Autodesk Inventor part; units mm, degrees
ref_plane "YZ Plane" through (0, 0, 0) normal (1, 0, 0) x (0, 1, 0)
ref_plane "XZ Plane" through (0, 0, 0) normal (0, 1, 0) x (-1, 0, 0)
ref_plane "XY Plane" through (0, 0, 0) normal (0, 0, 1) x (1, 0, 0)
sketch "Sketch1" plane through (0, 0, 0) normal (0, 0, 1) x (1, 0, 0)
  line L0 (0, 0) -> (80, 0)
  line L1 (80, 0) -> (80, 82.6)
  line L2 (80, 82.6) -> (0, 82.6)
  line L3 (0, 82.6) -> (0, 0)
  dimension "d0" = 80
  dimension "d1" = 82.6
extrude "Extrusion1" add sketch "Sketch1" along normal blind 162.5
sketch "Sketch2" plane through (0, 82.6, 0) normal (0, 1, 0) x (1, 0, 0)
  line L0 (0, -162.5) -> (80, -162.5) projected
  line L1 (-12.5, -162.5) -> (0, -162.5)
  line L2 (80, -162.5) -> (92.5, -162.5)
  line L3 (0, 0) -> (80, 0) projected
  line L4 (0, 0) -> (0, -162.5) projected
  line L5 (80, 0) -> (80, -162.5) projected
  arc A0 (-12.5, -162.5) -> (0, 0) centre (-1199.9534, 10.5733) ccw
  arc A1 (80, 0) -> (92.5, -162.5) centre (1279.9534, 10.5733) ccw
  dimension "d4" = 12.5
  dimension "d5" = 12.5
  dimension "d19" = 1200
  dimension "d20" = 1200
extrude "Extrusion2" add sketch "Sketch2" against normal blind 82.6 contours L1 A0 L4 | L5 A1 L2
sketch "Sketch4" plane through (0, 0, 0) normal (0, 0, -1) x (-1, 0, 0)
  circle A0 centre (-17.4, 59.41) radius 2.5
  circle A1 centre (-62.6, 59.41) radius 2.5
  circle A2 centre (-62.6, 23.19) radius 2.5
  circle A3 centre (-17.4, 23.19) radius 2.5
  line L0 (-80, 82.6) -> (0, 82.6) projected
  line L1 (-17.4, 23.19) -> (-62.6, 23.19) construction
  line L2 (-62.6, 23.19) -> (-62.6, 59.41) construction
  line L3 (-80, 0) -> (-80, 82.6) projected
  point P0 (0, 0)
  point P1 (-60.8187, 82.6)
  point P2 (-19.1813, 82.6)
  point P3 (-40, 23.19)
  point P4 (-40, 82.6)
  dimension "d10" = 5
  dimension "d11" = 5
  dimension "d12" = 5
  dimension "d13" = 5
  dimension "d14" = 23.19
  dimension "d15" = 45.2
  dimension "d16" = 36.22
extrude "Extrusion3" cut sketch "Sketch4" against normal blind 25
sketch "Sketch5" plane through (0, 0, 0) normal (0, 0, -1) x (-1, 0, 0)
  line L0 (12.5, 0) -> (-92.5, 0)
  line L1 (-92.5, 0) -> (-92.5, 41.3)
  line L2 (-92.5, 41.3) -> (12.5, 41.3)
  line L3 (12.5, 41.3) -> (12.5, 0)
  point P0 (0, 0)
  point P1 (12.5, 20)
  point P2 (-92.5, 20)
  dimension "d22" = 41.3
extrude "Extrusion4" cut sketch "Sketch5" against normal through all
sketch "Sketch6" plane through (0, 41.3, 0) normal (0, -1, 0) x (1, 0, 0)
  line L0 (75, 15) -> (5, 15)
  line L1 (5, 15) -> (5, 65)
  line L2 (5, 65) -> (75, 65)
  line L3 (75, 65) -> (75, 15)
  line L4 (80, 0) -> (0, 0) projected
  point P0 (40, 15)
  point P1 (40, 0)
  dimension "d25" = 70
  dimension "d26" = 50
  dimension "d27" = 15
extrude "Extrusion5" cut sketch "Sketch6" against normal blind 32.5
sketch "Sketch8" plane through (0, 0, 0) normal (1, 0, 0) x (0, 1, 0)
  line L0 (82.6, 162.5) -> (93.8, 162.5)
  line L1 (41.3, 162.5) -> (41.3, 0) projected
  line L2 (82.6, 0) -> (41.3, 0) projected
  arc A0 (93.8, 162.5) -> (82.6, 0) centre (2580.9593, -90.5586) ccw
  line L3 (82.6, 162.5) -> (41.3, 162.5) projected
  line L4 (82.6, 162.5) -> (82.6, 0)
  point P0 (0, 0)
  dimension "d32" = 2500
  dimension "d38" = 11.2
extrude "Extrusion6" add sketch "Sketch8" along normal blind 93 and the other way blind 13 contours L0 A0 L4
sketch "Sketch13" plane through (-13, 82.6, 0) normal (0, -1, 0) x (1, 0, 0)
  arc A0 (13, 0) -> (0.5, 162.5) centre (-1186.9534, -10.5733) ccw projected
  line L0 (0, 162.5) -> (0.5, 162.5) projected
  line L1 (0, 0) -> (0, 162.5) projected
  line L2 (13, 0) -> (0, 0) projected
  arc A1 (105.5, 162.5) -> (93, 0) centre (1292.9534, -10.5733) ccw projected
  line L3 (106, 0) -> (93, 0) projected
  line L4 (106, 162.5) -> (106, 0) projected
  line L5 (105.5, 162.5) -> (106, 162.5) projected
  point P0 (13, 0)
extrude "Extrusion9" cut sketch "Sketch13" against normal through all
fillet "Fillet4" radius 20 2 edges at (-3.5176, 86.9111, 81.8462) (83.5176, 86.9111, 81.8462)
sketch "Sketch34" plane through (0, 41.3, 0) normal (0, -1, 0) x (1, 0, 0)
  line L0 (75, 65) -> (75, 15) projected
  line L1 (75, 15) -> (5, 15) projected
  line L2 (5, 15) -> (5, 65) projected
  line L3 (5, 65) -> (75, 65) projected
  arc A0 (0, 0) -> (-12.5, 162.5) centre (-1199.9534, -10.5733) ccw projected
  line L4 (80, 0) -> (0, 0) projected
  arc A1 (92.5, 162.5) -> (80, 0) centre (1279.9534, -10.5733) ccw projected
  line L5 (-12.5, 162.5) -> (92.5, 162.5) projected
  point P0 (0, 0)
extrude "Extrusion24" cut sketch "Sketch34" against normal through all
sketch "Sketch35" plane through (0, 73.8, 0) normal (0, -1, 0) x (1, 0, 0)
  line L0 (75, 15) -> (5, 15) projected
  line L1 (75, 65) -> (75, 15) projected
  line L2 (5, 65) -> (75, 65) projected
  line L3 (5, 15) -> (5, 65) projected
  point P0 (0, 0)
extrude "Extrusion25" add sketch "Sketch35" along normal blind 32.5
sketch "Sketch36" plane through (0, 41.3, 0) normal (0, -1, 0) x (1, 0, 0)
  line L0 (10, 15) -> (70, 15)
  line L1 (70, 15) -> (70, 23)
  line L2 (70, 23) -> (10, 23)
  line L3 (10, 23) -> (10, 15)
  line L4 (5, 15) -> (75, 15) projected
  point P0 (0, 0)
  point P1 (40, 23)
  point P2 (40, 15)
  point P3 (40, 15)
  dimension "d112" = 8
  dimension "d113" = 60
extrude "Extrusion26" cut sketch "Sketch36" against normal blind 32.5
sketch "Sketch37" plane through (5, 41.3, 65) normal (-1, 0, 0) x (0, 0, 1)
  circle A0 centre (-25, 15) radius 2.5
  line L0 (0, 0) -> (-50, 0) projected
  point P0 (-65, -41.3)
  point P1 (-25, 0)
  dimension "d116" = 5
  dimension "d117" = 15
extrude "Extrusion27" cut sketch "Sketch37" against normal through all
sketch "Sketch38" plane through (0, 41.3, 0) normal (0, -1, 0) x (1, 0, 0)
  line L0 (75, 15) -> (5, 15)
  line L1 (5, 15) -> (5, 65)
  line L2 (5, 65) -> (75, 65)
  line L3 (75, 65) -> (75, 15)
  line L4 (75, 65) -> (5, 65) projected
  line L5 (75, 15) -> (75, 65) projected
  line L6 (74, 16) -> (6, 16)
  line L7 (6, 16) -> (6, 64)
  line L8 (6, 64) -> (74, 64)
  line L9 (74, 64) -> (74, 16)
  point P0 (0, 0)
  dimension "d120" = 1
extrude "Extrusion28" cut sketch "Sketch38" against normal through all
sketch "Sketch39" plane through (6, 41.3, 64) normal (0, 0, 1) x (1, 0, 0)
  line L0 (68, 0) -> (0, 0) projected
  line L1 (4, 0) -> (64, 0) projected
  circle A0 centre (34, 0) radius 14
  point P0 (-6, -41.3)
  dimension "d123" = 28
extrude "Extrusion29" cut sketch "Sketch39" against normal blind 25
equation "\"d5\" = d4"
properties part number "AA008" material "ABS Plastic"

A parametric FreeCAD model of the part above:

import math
import FreeCAD as App
import Part
import Sketcher


def edges_at(feature, points):
    """Names of the edges that pass closest to the given points."""
    edges = feature.Shape.Edges
    near = lambda p: min(range(len(edges)), key=lambda i: edges[i].distToShape(Part.Vertex(*p))[0])
    return sorted({f"Edge{near(p) + 1}" for p in points})


def add_polygon(sketch, points):
    """Adds a closed chain of lines whose ends are joined by coincident constraints."""
    first, n = sketch.GeometryCount, len(points)
    for a, b in zip(points, points[1:] + points[:1]):
        sketch.addGeometry(Part.LineSegment(App.Vector(*a, 0), App.Vector(*b, 0)), False)
    for i in range(n):
        sketch.addConstraint(Sketcher.Constraint("Coincident", first + i, 2, first + (i + 1) % n, 1))

doc = App.newDocument("Part")
params = doc.addObject("Spreadsheet::Sheet", "Params")
for row, (alias, value) in enumerate([
    ("sketch1_width", "80 mm"),
    ("sketch1_height", "82.6 mm"),
    ("pad1_length", "162.5 mm"),
    ("sketch2_width", "12.5 mm"),
    ("sketch2_width2", "12.5 mm"),
    ("sketch2_height", "162.5 mm"),
    ("sketch2_height2", "162.5 mm"),
    ("pad2_length", "82.6 mm"),
    ("sketch3_diameter", "5 mm"),
    ("pocket1_length", "25 mm"),
    ("sketch4_height", "41.3 mm"),
    ("sketch4_width", "105 mm"),
    ("sketch5_width", "70 mm"),
    ("sketch5_height", "50 mm"),
    ("pocket3_length", "32.5 mm"),
    ("sketch6_width", "11.2 mm"),
    ("sketch6_height", "162.5 mm"),
    ("pad3_length", "93 mm"),
    ("pad3_length2", "13 mm"),
    ("sketch7_width", "13 mm"),
    ("sketch7_width2", "13 mm"),
    ("sketch7_width3", "0.5 mm"),
    ("sketch7_width4", "0.5 mm"),
    ("sketch7_height", "162.5 mm"),
    ("fillet_radius", "20 mm"),
    ("sketch8_width", "80 mm"),
    ("sketch8_width2", "105 mm"),
    ("sketch8_width3", "70 mm"),
    ("sketch8_height", "50 mm"),
    ("sketch9_width", "70 mm"),
    ("sketch9_height", "50 mm"),
    ("pad4_length", "32.5 mm"),
    ("sketch10_width", "60 mm"),
    ("sketch10_height", "8 mm"),
    ("pocket6_length", "32.5 mm"),
    ("sketch11_diameter", "5 mm"),
    ("sketch12_width", "70 mm"),
    ("sketch12_height", "50 mm"),
    ("sketch13_diameter", "28 mm"),
    ("pocket9_length", "25 mm"),
], start=1):
    params.set(f"A{row}", alias)
    params.set(f"B{row}", "=" + value)
    params.setAlias(f"B{row}", alias)

body = doc.addObject("PartDesign::Body", "Body")

# Sketch on XY plane
sketch1 = body.newObject("Sketcher::SketchObject", "Sketch")
sketch1.AttachmentSupport = (doc.getObject("XY_Plane"), [""])
sketch1.MapMode = "FlatFace"
add_polygon(sketch1, [(0, 83), (0, 0), (80, 0), (80, 83)])  # lines 0-3
sketch1.addConstraint(Sketcher.Constraint("Vertical", 0))
sketch1.addConstraint(Sketcher.Constraint("Horizontal", 1))
sketch1.addConstraint(Sketcher.Constraint("Vertical", 2))
sketch1.addConstraint(Sketcher.Constraint("Horizontal", 3))
sketch1.addConstraint(Sketcher.Constraint("Coincident", 0, 2, -1, 1))
sketch1.addConstraint(Sketcher.Constraint("DistanceX", 1, 1, 1, 2, 80.0))
sketch1.addConstraint(Sketcher.Constraint("DistanceY", 0, 2, 0, 1, 82.6))
sketch1.setExpression("Constraints[9]", "Params.sketch1_width")
sketch1.setExpression("Constraints[10]", "Params.sketch1_height")
pad1 = body.newObject("PartDesign::Pad", "Pad")
pad1.Profile = sketch1
pad1.setExpression("Length", "Params.pad1_length")

# Sketch on XZ plane
sketch2 = body.newObject("Sketcher::SketchObject", "Sketch001")
sketch2.AttachmentSupport = (doc.getObject("XZ_Plane"), [""])
sketch2.MapMode = "FlatFace"
sketch2.AttachmentOffset = App.Placement(App.Vector(0, 0, -82.6), App.Rotation())
sketch2.addGeometry(Part.LineSegment(App.Vector(-12.5, 162.5, 0), App.Vector(0, 162.5, 0)), False)
sketch2.addGeometry(Part.LineSegment(App.Vector(0, 162.5, 0), App.Vector(0, 0, 0)), False)
sketch2.addGeometry(Part.ArcOfCircle(Part.Circle(App.Vector(-1199.954522, -10.573425, 0), App.Vector(0, 0, 1), 1200.001105), math.radians(0.50485), math.radians(8.292561)), False)
sketch2.addGeometry(Part.LineSegment(App.Vector(80, 0, 0), App.Vector(80, 162.5, 0)), False)
sketch2.addGeometry(Part.LineSegment(App.Vector(80, 162.5, 0), App.Vector(92.5, 162.5, 0)), False)
sketch2.addGeometry(Part.ArcOfCircle(Part.Circle(App.Vector(1279.952272, -10.573252, 0), App.Vector(0, 0, 1), 1199.998854), math.radians(171.707432), math.radians(179.495157)), False)
sketch2.addConstraint(Sketcher.Constraint("Coincident", 0, 2, 1, 1))
sketch2.addConstraint(Sketcher.Constraint("Coincident", 1, 2, 2, 1))
sketch2.addConstraint(Sketcher.Constraint("Coincident", 2, 2, 0, 1))
sketch2.addConstraint(Sketcher.Constraint("Coincident", 3, 2, 4, 1))
sketch2.addConstraint(Sketcher.Constraint("Coincident", 4, 2, 5, 1))
sketch2.addConstraint(Sketcher.Constraint("Coincident", 5, 2, 3, 1))
sketch2.addConstraint(Sketcher.Constraint("Horizontal", 0))
sketch2.addConstraint(Sketcher.Constraint("Vertical", 1))
sketch2.addConstraint(Sketcher.Constraint("Vertical", 3))
sketch2.addConstraint(Sketcher.Constraint("Horizontal", 4))
sketch2.addConstraint(Sketcher.Constraint("Coincident", 1, 2, -1, 1))
sketch2.addConstraint(Sketcher.Constraint("DistanceX", 0, 1, 0, 2, 12.5))
sketch2.addConstraint(Sketcher.Constraint("DistanceX", 4, 1, 4, 2, 12.5))
sketch2.addConstraint(Sketcher.Constraint("DistanceY", 1, 2, 1, 1, 162.5))
sketch2.addConstraint(Sketcher.Constraint("DistanceY", 3, 1, 3, 2, 162.5))
sketch2.addConstraint(Sketcher.Constraint("DistanceX", -1, 1, 3, 2, 80.0))
sketch2.addConstraint(Sketcher.Constraint("Radius", 2, 1200.001))
sketch2.addConstraint(Sketcher.Constraint("DistanceY", -1, 1, 3, 2, 162.5))
sketch2.addConstraint(Sketcher.Constraint("Radius", 5, 1199.9989))
sketch2.setExpression("Constraints[11]", "Params.sketch2_width")
sketch2.setExpression("Constraints[12]", "Params.sketch2_width2")
sketch2.setExpression("Constraints[13]", "Params.sketch2_height")
sketch2.setExpression("Constraints[14]", "Params.sketch2_height2")
pad2 = body.newObject("PartDesign::Pad", "Pad001")
pad2.Profile = sketch2
pad2.setExpression("Length", "Params.pad2_length")

# Sketch on XY plane
sketch3 = body.newObject("Sketcher::SketchObject", "Sketch002")
sketch3.AttachmentSupport = (doc.getObject("XY_Plane"), [""])
sketch3.MapMode = "FlatFace"
sketch3.addGeometry(Part.Circle(App.Vector(17.4, 59.4, 0), App.Vector(0, 0, 1), 2.5), False)
sketch3.addGeometry(Part.Circle(App.Vector(62.6, 59.4, 0), App.Vector(0, 0, 1), 2.5), False)
sketch3.addGeometry(Part.Circle(App.Vector(62.6, 23.2, 0), App.Vector(0, 0, 1), 2.5), False)
sketch3.addGeometry(Part.Circle(App.Vector(17.4, 23.2, 0), App.Vector(0, 0, 1), 2.5), False)
sketch3.addConstraint(Sketcher.Constraint("Equal", 0, 1))
sketch3.addConstraint(Sketcher.Constraint("Equal", 1, 2))
sketch3.addConstraint(Sketcher.Constraint("Equal", 2, 3))
sketch3.addConstraint(Sketcher.Constraint("Horizontal", 0, 3, 1, 3))
sketch3.addConstraint(Sketcher.Constraint("Horizontal", 2, 3, 3, 3))
sketch3.addConstraint(Sketcher.Constraint("Vertical", 1, 3, 2, 3))
sketch3.addConstraint(Sketcher.Constraint("Vertical", 0, 3, 3, 3))
sketch3.addConstraint(Sketcher.Constraint("Diameter", 0, 5.0))
sketch3.addConstraint(Sketcher.Constraint("DistanceX", 0, 3, 1, 3, 45.2))
sketch3.addConstraint(Sketcher.Constraint("DistanceY", -1, 1, 2, 3, 23.19))
sketch3.addConstraint(Sketcher.Constraint("DistanceY", 2, 3, 1, 3, 36.22))
sketch3.addConstraint(Sketcher.Constraint("DistanceX", -1, 1, 0, 3, 17.4))
sketch3.setExpression("Constraints[7]", "Params.sketch3_diameter")
pocket1 = body.newObject("PartDesign::Pocket", "Pocket")
pocket1.Profile = sketch3
pocket1.setExpression("Length", "Params.pocket1_length")
pocket1.Reversed = True

# Sketch on XY plane
sketch4 = body.newObject("Sketcher::SketchObject", "Sketch003")
sketch4.AttachmentSupport = (doc.getObject("XY_Plane"), [""])
sketch4.MapMode = "FlatFace"
add_polygon(sketch4, [(92, 0), (-12, 0), (-12, 41), (92, 41)])  # lines 0-3
sketch4.addConstraint(Sketcher.Constraint("Horizontal", 0))
sketch4.addConstraint(Sketcher.Constraint("Vertical", 1))
sketch4.addConstraint(Sketcher.Constraint("Horizontal", 2))
sketch4.addConstraint(Sketcher.Constraint("Vertical", 3))
sketch4.addConstraint(Sketcher.Constraint("PointOnObject", 0, 2, -1))
sketch4.addConstraint(Sketcher.Constraint("DistanceY", 1, 1, 1, 2, 41.3))
sketch4.addConstraint(Sketcher.Constraint("DistanceX", 0, 2, 0, 1, 105.0))
sketch4.addConstraint(Sketcher.Constraint("DistanceX", 0, 2, -1, 1, 12.5))
sketch4.setExpression("Constraints[9]", "Params.sketch4_height")
sketch4.setExpression("Constraints[10]", "Params.sketch4_width")
pocket2 = body.newObject("PartDesign::Pocket", "Pocket001")
pocket2.Profile = sketch4
pocket2.Type = "ThroughAll"
pocket2.Reversed = True

# Sketch on XZ plane
sketch5 = body.newObject("Sketcher::SketchObject", "Sketch004")
sketch5.AttachmentSupport = (doc.getObject("XZ_Plane"), [""])
sketch5.MapMode = "FlatFace"
sketch5.AttachmentOffset = App.Placement(App.Vector(0, 0, -41.3), App.Rotation())
add_polygon(sketch5, [(5, 15), (75, 15), (75, 65), (5, 65)])  # lines 0-3
sketch5.addConstraint(Sketcher.Constraint("Horizontal", 0))
sketch5.addConstraint(Sketcher.Constraint("Vertical", 1))
sketch5.addConstraint(Sketcher.Constraint("Horizontal", 2))
sketch5.addConstraint(Sketcher.Constraint("Vertical", 3))
sketch5.addConstraint(Sketcher.Constraint("DistanceX", 0, 1, 0, 2, 70.0))
sketch5.addConstraint(Sketcher.Constraint("DistanceY", 1, 1, 1, 2, 50.0))
sketch5.addConstraint(Sketcher.Constraint("DistanceY", -1, 1, 0, 2, 15.0))
sketch5.addConstraint(Sketcher.Constraint("DistanceX", -1, 1, 0, 2, 75.0))
sketch5.setExpression("Constraints[8]", "Params.sketch5_width")
sketch5.setExpression("Constraints[9]", "Params.sketch5_height")
pocket3 = body.newObject("PartDesign::Pocket", "Pocket002")
pocket3.Profile = sketch5
pocket3.setExpression("Length", "Params.pocket3_length")

# Sketch on YZ plane
sketch6 = body.newObject("Sketcher::SketchObject", "Sketch005")
sketch6.AttachmentSupport = (doc.getObject("YZ_Plane"), [""])
sketch6.MapMode = "FlatFace"
sketch6.addGeometry(Part.LineSegment(App.Vector(94, 162, 0), App.Vector(83, 162, 0)), False)
sketch6.addGeometry(Part.LineSegment(App.Vector(83, 162, 0), App.Vector(83, 0, 0)), False)
sketch6.addGeometry(Part.ArcOfCircle(Part.Circle(App.Vector(2581, -91, 0), App.Vector(0, 0, 1), 2500), math.radians(174.19), math.radians(177.92)), False)
sketch6.addConstraint(Sketcher.Constraint("Coincident", 0, 2, 1, 1))
sketch6.addConstraint(Sketcher.Constraint("Coincident", 1, 2, 2, 2))
sketch6.addConstraint(Sketcher.Constraint("Coincident", 2, 1, 0, 1))
sketch6.addConstraint(Sketcher.Constraint("Horizontal", 0))
sketch6.addConstraint(Sketcher.Constraint("Vertical", 1))
sketch6.addConstraint(Sketcher.Constraint("PointOnObject", 1, 2, -1))
sketch6.addConstraint(Sketcher.Constraint("DistanceX", 0, 2, 0, 1, 11.2))
sketch6.addConstraint(Sketcher.Constraint("DistanceY", 1, 2, 1, 1, 162.5))
sketch6.addConstraint(Sketcher.Constraint("DistanceX", -1, 1, 0, 2, 82.6))
sketch6.addConstraint(Sketcher.Constraint("Radius", 2, 2500.0025))
sketch6.setExpression("Constraints[6]", "Params.sketch6_width")
sketch6.setExpression("Constraints[7]", "Params.sketch6_height")
pad3 = body.newObject("PartDesign::Pad", "Pad002")
pad3.Profile = sketch6
pad3.Type = "TwoLengths"
pad3.setExpression("Length", "Params.pad3_length")
pad3.setExpression("Length2", "Params.pad3_length2")

# Sketch on XZ plane
sketch7 = body.newObject("Sketcher::SketchObject", "Sketch006")
sketch7.AttachmentSupport = (doc.getObject("XZ_Plane"), [""])
sketch7.MapMode = "FlatFace"
sketch7.AttachmentOffset = App.Placement(App.Vector(0, 0, -82.6), App.Rotation())
sketch7.addGeometry(Part.LineSegment(App.Vector(-13, 0, 0), App.Vector(0, 0, 0)), False)
sketch7.addGeometry(Part.ArcOfCircle(Part.Circle(App.Vector(-1199.952272, -10.573252, 0), App.Vector(0, 0, 1), 1199.998854), math.radians(0.504843), math.radians(8.292568)), False)
sketch7.addGeometry(Part.LineSegment(App.Vector(-12.5, 162.5, 0), App.Vector(-13, 162.5, 0)), False)
sketch7.addGeometry(Part.LineSegment(App.Vector(-13, 162.5, 0), App.Vector(-13, 0, 0)), False)
sketch7.addGeometry(Part.LineSegment(App.Vector(93, 162.5, 0), App.Vector(92.5, 162.5, 0)), False)
sketch7.addGeometry(Part.ArcOfCircle(Part.Circle(App.Vector(1279.954522, -10.573425, 0), App.Vector(0, 0, 1), 1200.001105), math.radians(171.707439), math.radians(179.49515)), False)
sketch7.addGeometry(Part.LineSegment(App.Vector(80, 0, 0), App.Vector(93, 0, 0)), False)
sketch7.addGeometry(Part.LineSegment(App.Vector(93, 0, 0), App.Vector(93, 162.5, 0)), False)
sketch7.addConstraint(Sketcher.Constraint("Coincident", 0, 2, 1, 1))
sketch7.addConstraint(Sketcher.Constraint("Coincident", 1, 2, 2, 1))
sketch7.addConstraint(Sketcher.Constraint("Coincident", 2, 2, 3, 1))
sketch7.addConstraint(Sketcher.Constraint("Coincident", 3, 2, 0, 1))
sketch7.addConstraint(Sketcher.Constraint("Coincident", 4, 2, 5, 1))
sketch7.addConstraint(Sketcher.Constraint("Coincident", 5, 2, 6, 1))
sketch7.addConstraint(Sketcher.Constraint("Coincident", 6, 2, 7, 1))
sketch7.addConstraint(Sketcher.Constraint("Coincident", 7, 2, 4, 1))
sketch7.addConstraint(Sketcher.Constraint("Horizontal", 0))
sketch7.addConstraint(Sketcher.Constraint("Horizontal", 2))
sketch7.addConstraint(Sketcher.Constraint("Vertical", 3))
sketch7.addConstraint(Sketcher.Constraint("Horizontal", 4))
sketch7.addConstraint(Sketcher.Constraint("Horizontal", 6))
sketch7.addConstraint(Sketcher.Constraint("Vertical", 7))
sketch7.addConstraint(Sketcher.Constraint("Coincident", 0, 2, -1, 1))
sketch7.addConstraint(Sketcher.Constraint("PointOnObject", 6, 2, -1))
sketch7.addConstraint(Sketcher.Constraint("DistanceX", 0, 1, 0, 2, 13.0))
sketch7.addConstraint(Sketcher.Constraint("DistanceX", 6, 1, 6, 2, 13.0))
sketch7.addConstraint(Sketcher.Constraint("DistanceX", 2, 2, 2, 1, 0.5))
sketch7.addConstraint(Sketcher.Constraint("DistanceX", 4, 2, 4, 1, 0.5))
sketch7.addConstraint(Sketcher.Constraint("DistanceY", 3, 2, 3, 1, 162.5))
sketch7.addConstraint(Sketcher.Constraint("DistanceY", 7, 1, 7, 2, 162.5))
sketch7.addConstraint(Sketcher.Constraint("DistanceX", -1, 1, 5, 2, 80.0))
sketch7.addConstraint(Sketcher.Constraint("Radius", 5, 1200.001))
sketch7.addConstraint(Sketcher.Constraint("Radius", 1, 1199.9989))
sketch7.setExpression("Constraints[16]", "Params.sketch7_width")
sketch7.setExpression("Constraints[17]", "Params.sketch7_width2")
sketch7.setExpression("Constraints[18]", "Params.sketch7_width3")
sketch7.setExpression("Constraints[19]", "Params.sketch7_width4")
sketch7.setExpression("Constraints[20]", "Params.sketch7_height")
pocket4 = body.newObject("PartDesign::Pocket", "Pocket003")
pocket4.Profile = sketch7
pocket4.Type = "ThroughAll"
doc.recompute()

fillet = body.newObject("PartDesign::Fillet", "Fillet")
fillet.Base = (pocket4, edges_at(pocket4, [(-3.518, 86.911, 81.846), (83.518, 86.911, 81.846)]))
fillet.setExpression("Radius", "Params.fillet_radius")

# Sketch on XZ plane
sketch8 = body.newObject("Sketcher::SketchObject", "Sketch007")
sketch8.AttachmentSupport = (doc.getObject("XZ_Plane"), [""])
sketch8.MapMode = "FlatFace"
sketch8.AttachmentOffset = App.Placement(App.Vector(0, 0, -41.3), App.Rotation())
sketch8.addGeometry(Part.ArcOfCircle(Part.Circle(App.Vector(-1199.952272, -10.573252, 0), App.Vector(0, 0, 1), 1199.998854), math.radians(0.504843), math.radians(8.292568)), False)  # 0
sketch8.addGeometry(Part.LineSegment(App.Vector(0, 0, 0), App.Vector(80, 0, 0)), False)  # 1
sketch8.addGeometry(Part.ArcOfCircle(Part.Circle(App.Vector(1279.954522, -10.573425, 0), App.Vector(0, 0, 1), 1200.001105), math.radians(171.707439), math.radians(179.49515)), False)  # 2
sketch8.addGeometry(Part.LineSegment(App.Vector(92.5, 162.5, 0), App.Vector(-12.5, 162.5, 0)), False)  # 3
add_polygon(sketch8, [(5, 65), (75, 65), (75, 15), (5, 15)])  # lines 4-7
sketch8.addConstraint(Sketcher.Constraint("Coincident", 0, 1, 1, 1))
sketch8.addConstraint(Sketcher.Constraint("Coincident", 1, 2, 2, 2))
sketch8.addConstraint(Sketcher.Constraint("Coincident", 2, 1, 3, 1))
sketch8.addConstraint(Sketcher.Constraint("Coincident", 3, 2, 0, 2))
sketch8.addConstraint(Sketcher.Constraint("Horizontal", 1))
sketch8.addConstraint(Sketcher.Constraint("Horizontal", 3))
sketch8.addConstraint(Sketcher.Constraint("Horizontal", 4))
sketch8.addConstraint(Sketcher.Constraint("Vertical", 5))
sketch8.addConstraint(Sketcher.Constraint("Horizontal", 6))
sketch8.addConstraint(Sketcher.Constraint("Vertical", 7))
sketch8.addConstraint(Sketcher.Constraint("PointOnObject", 1, 2, -1))
sketch8.addConstraint(Sketcher.Constraint("DistanceX", 1, 1, 1, 2, 80.0))
sketch8.addConstraint(Sketcher.Constraint("DistanceX", 3, 2, 3, 1, 105.0))
sketch8.addConstraint(Sketcher.Constraint("DistanceX", 4, 1, 4, 2, 70.0))
sketch8.addConstraint(Sketcher.Constraint("DistanceY", 5, 2, 5, 1, 50.0))
sketch8.addConstraint(Sketcher.Constraint("DistanceX", -1, 1, 1, 2, 80.0))
sketch8.addConstraint(Sketcher.Constraint("DistanceX", -1, 1, 4, 2, 75.0))
sketch8.addConstraint(Sketcher.Constraint("DistanceY", -1, 1, 4, 2, 65.0))
sketch8.addConstraint(Sketcher.Constraint("Radius", 2, 1200.001))
sketch8.addConstraint(Sketcher.Constraint("DistanceX", 3, 2, -1, 1, 12.5))
sketch8.addConstraint(Sketcher.Constraint("DistanceY", -1, 1, 3, 2, 162.5))
sketch8.addConstraint(Sketcher.Constraint("Radius", 0, 1199.9989))
sketch8.setExpression("Constraints[15]", "Params.sketch8_width")
sketch8.setExpression("Constraints[16]", "Params.sketch8_width2")
sketch8.setExpression("Constraints[17]", "Params.sketch8_width3")
sketch8.setExpression("Constraints[18]", "Params.sketch8_height")
pocket5 = body.newObject("PartDesign::Pocket", "Pocket004")
pocket5.Profile = sketch8
pocket5.Type = "ThroughAll"

# Sketch on XZ plane
sketch9 = body.newObject("Sketcher::SketchObject", "Sketch008")
sketch9.AttachmentSupport = (doc.getObject("XZ_Plane"), [""])
sketch9.MapMode = "FlatFace"
sketch9.AttachmentOffset = App.Placement(App.Vector(0, 0, -73.8), App.Rotation())
add_polygon(sketch9, [(5, 15), (75, 15), (75, 65), (5, 65)])  # lines 0-3
sketch9.addConstraint(Sketcher.Constraint("Horizontal", 0))
sketch9.addConstraint(Sketcher.Constraint("Vertical", 1))
sketch9.addConstraint(Sketcher.Constraint("Horizontal", 2))
sketch9.addConstraint(Sketcher.Constraint("Vertical", 3))
sketch9.addConstraint(Sketcher.Constraint("DistanceX", 0, 1, 0, 2, 70.0))
sketch9.addConstraint(Sketcher.Constraint("DistanceY", 1, 1, 1, 2, 50.0))
sketch9.addConstraint(Sketcher.Constraint("DistanceX", -1, 1, 0, 2, 75.0))
sketch9.addConstraint(Sketcher.Constraint("DistanceY", -1, 1, 0, 2, 15.0))
sketch9.setExpression("Constraints[8]", "Params.sketch9_width")
sketch9.setExpression("Constraints[9]", "Params.sketch9_height")
pad4 = body.newObject("PartDesign::Pad", "Pad003")
pad4.Profile = sketch9
pad4.setExpression("Length", "Params.pad4_length")

# Sketch on XZ plane
sketch10 = body.newObject("Sketcher::SketchObject", "Sketch009")
sketch10.AttachmentSupport = (doc.getObject("XZ_Plane"), [""])
sketch10.MapMode = "FlatFace"
sketch10.AttachmentOffset = App.Placement(App.Vector(0, 0, -41.3), App.Rotation())
add_polygon(sketch10, [(10, 23), (10, 15), (70, 15), (70, 23)])  # lines 0-3
sketch10.addConstraint(Sketcher.Constraint("Vertical", 0))
sketch10.addConstraint(Sketcher.Constraint("Horizontal", 1))
sketch10.addConstraint(Sketcher.Constraint("Vertical", 2))
sketch10.addConstraint(Sketcher.Constraint("Horizontal", 3))
sketch10.addConstraint(Sketcher.Constraint("DistanceX", 1, 1, 1, 2, 60.0))
sketch10.addConstraint(Sketcher.Constraint("DistanceY", 0, 2, 0, 1, 8.0))
sketch10.addConstraint(Sketcher.Constraint("DistanceX", -1, 1, 0, 2, 10.0))
sketch10.addConstraint(Sketcher.Constraint("DistanceY", -1, 1, 0, 2, 15.0))
sketch10.setExpression("Constraints[8]", "Params.sketch10_width")
sketch10.setExpression("Constraints[9]", "Params.sketch10_height")
pocket6 = body.newObject("PartDesign::Pocket", "Pocket005")
pocket6.Profile = sketch10
pocket6.setExpression("Length", "Params.pocket6_length")

# Sketch on YZ plane
sketch11 = body.newObject("Sketcher::SketchObject", "Sketch010")
sketch11.AttachmentSupport = (doc.getObject("YZ_Plane"), [""])
sketch11.MapMode = "FlatFace"
sketch11.AttachmentOffset = App.Placement(App.Vector(0, 0, 5), App.Rotation())
sketch11.addGeometry(Part.Circle(App.Vector(56.3, 40, 0), App.Vector(0, 0, 1), 2.5), False)
sketch11.addConstraint(Sketcher.Constraint("Diameter", 0, 5.0))
sketch11.addConstraint(Sketcher.Constraint("DistanceY", -1, 1, 0, 3, 40.0))
sketch11.addConstraint(Sketcher.Constraint("DistanceX", -1, 1, 0, 3, 56.3))
sketch11.setExpression("Constraints[0]", "Params.sketch11_diameter")
pocket7 = body.newObject("PartDesign::Pocket", "Pocket006")
pocket7.Profile = sketch11
pocket7.Type = "ThroughAll"
pocket7.Reversed = True

# Sketch on XZ plane
sketch12 = body.newObject("Sketcher::SketchObject", "Sketch011")
sketch12.AttachmentSupport = (doc.getObject("XZ_Plane"), [""])
sketch12.MapMode = "FlatFace"
sketch12.AttachmentOffset = App.Placement(App.Vector(0, 0, -41.3), App.Rotation())
add_polygon(sketch12, [(5, 15), (75, 15), (75, 65), (5, 65)])  # lines 0-3
add_polygon(sketch12, [(74, 64), (74, 16), (6, 16), (6, 64)])  # lines 4-7
sketch12.addConstraint(Sketcher.Constraint("Horizontal", 0))
sketch12.addConstraint(Sketcher.Constraint("Vertical", 1))
sketch12.addConstraint(Sketcher.Constraint("Horizontal", 2))
sketch12.addConstraint(Sketcher.Constraint("Vertical", 3))
sketch12.addConstraint(Sketcher.Constraint("Vertical", 4))
sketch12.addConstraint(Sketcher.Constraint("Horizontal", 5))
sketch12.addConstraint(Sketcher.Constraint("Vertical", 6))
sketch12.addConstraint(Sketcher.Constraint("Horizontal", 7))
sketch12.addConstraint(Sketcher.Constraint("DistanceX", 4, 2, 0, 2, 1.0))
sketch12.addConstraint(Sketcher.Constraint("DistanceY", 0, 2, 4, 2, 1.0))
sketch12.addConstraint(Sketcher.Constraint("DistanceX", 3, 2, 5, 2, 1.0))
sketch12.addConstraint(Sketcher.Constraint("DistanceY", 6, 2, 2, 2, 1.0))
sketch12.addConstraint(Sketcher.Constraint("DistanceX", 0, 1, 0, 2, 70.0))
sketch12.addConstraint(Sketcher.Constraint("DistanceY", 1, 1, 1, 2, 50.0))
sketch12.addConstraint(Sketcher.Constraint("DistanceX", -1, 1, 0, 2, 75.0))
sketch12.addConstraint(Sketcher.Constraint("DistanceY", -1, 1, 0, 2, 15.0))
sketch12.setExpression("Constraints[20]", "Params.sketch12_width")
sketch12.setExpression("Constraints[21]", "Params.sketch12_height")
pocket8 = body.newObject("PartDesign::Pocket", "Pocket007")
pocket8.Profile = sketch12
pocket8.Type = "ThroughAll"

# Sketch on XY plane
sketch13 = body.newObject("Sketcher::SketchObject", "Sketch012")
sketch13.AttachmentSupport = (doc.getObject("XY_Plane"), [""])
sketch13.MapMode = "FlatFace"
sketch13.AttachmentOffset = App.Placement(App.Vector(0, 0, 64), App.Rotation())
sketch13.addGeometry(Part.Circle(App.Vector(40, 41, 0), App.Vector(0, 0, 1), 14), False)
sketch13.addConstraint(Sketcher.Constraint("Diameter", 0, 28.0))
sketch13.addConstraint(Sketcher.Constraint("DistanceX", -1, 1, 0, 3, 40.0))
sketch13.addConstraint(Sketcher.Constraint("DistanceY", -1, 1, 0, 3, 41.3))
sketch13.setExpression("Constraints[0]", "Params.sketch13_diameter")
pocket9 = body.newObject("PartDesign::Pocket", "Pocket008")
pocket9.Profile = sketch13
pocket9.setExpression("Length", "Params.pocket9_length")

doc.recompute()
